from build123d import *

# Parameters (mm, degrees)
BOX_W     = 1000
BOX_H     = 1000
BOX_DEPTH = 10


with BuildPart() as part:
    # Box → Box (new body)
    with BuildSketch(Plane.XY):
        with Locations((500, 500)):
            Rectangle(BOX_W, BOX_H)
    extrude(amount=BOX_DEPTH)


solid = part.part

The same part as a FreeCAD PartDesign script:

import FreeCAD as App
import Part
import Sketcher


def add_polygon(sketch, points):
    """Adds a closed chain of lines whose ends are joined by coincident constraints."""
    first, n = sketch.GeometryCount, len(points)
    for a, b in zip(points, points[1:] + points[:1]):
        sketch.addGeometry(Part.LineSegment(App.Vector(*a, 0), App.Vector(*b, 0)), False)
    for i in range(n):
        sketch.addConstraint(Sketcher.Constraint("Coincident", first + i, 2, first + (i + 1) % n, 1))

doc = App.newDocument("Part")
body = doc.addObject("PartDesign::Body", "Body")

# Sketch on XY plane
sketch1 = body.newObject("Sketcher::SketchObject", "Sketch")
sketch1.AttachmentSupport = (doc.getObject("XY_Plane"), [""])
sketch1.MapMode = "FlatFace"
add_polygon(sketch1, [(0, 1000), (0, 0), (1000, 0), (1000, 1000)])  # lines 0-3
sketch1.addConstraint([
    Sketcher.Constraint("Vertical", 0),
    Sketcher.Constraint("Horizontal", 1),
    Sketcher.Constraint("Vertical", 2),
    Sketcher.Constraint("Horizontal", 3),
    Sketcher.Constraint("Coincident", 0, 2, -1, 1),
    Sketcher.Constraint("Equal", 3, 0),
    Sketcher.Constraint("DistanceX", 1, 1, 1, 2, 1000.0),
])
pad1 = body.newObject("PartDesign::Pad", "Pad")
pad1.Profile = sketch1
pad1.Length = 10

doc.recompute()
